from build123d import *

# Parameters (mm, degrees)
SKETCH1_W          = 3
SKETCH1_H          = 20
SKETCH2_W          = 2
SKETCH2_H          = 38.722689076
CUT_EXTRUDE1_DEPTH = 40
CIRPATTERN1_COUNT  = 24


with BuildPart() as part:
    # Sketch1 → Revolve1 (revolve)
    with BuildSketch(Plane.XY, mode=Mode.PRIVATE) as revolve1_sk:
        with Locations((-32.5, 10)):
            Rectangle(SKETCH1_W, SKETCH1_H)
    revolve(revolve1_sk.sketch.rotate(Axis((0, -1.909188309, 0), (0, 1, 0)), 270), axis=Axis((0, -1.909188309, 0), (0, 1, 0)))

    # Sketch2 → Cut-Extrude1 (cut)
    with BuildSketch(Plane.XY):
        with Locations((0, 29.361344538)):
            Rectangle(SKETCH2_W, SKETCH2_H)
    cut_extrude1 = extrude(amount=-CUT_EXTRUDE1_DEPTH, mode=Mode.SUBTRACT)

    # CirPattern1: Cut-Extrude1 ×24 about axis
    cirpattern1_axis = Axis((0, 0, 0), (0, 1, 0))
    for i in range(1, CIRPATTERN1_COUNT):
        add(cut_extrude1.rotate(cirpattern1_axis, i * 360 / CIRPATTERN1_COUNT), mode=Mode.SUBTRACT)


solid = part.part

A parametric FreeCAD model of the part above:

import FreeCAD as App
import Part
import Sketcher
from FreeCAD import Vector


def add_polygon(sketch, points):
    """Adds a closed chain of lines whose ends are joined by coincident constraints."""
    first, n = sketch.GeometryCount, len(points)
    for a, b in zip(points, points[1:] + points[:1]):
        sketch.addGeometry(Part.LineSegment(App.Vector(*a, 0), App.Vector(*b, 0)), False)
    for i in range(n):
        sketch.addConstraint(Sketcher.Constraint("Coincident", first + i, 2, first + (i + 1) % n, 1))

doc = App.newDocument("Part")
body = doc.addObject("PartDesign::Body", "Body")

# Sketch on XY plane
sketch1 = doc.addObject("Sketcher::SketchObject", "Sketch")
body.addObject(sketch1)
sketch1.AttachmentSupport = (doc.XY_Plane, [""])
sketch1.MapMode = "FlatFace"
add_polygon(sketch1, [(-34, 20), (-34, 0), (-31, 0), (-31, 20)])  # lines 0-3
sketch1.addConstraint([
    Sketcher.Constraint("Vertical", 0),
    Sketcher.Constraint("Horizontal", 1),
    Sketcher.Constraint("Vertical", 2),
    Sketcher.Constraint("Horizontal", 3),
    Sketcher.Constraint("PointOnObject", 0, 2, -1),
    Sketcher.Constraint("DistanceX", 1, 1, 1, 2, 3.0),
    Sketcher.Constraint("DistanceY", 0, 2, 0, 1, 20.0),
    Sketcher.Constraint("DistanceX", 0, 2, -1, 1, 34.0),
])
revolution = doc.addObject("PartDesign::Revolution", "Revolution")
body.addObject(revolution)
revolution.Profile = sketch1
revolution.ReferenceAxis = (sketch1, ["V_Axis"])
revolution.Angle = 360

# Sketch on XY plane
sketch2 = doc.addObject("Sketcher::SketchObject", "Sketch001")
body.addObject(sketch2)
sketch2.AttachmentSupport = (doc.XY_Plane, [""])
sketch2.MapMode = "FlatFace"
add_polygon(sketch2, [(-1, 48.722689), (-1, 10), (1, 10), (1, 48.722689)])  # lines 0-3
sketch2.addConstraint([
    Sketcher.Constraint("Vertical", 0),
    Sketcher.Constraint("Horizontal", 1),
    Sketcher.Constraint("Vertical", 2),
    Sketcher.Constraint("Horizontal", 3),
    Sketcher.Constraint("DistanceX", 1, 1, 1, 2, 2.0),
    Sketcher.Constraint("DistanceX", 0, 2, -1, 1, 1.0),
    Sketcher.Constraint("DistanceY", -1, 1, 0, 2, 10.0),
    Sketcher.Constraint("DistanceY", 0, 2, 0, 1, 38.722689),
])
pocket1 = doc.addObject("PartDesign::Pocket", "Pocket")
body.addObject(pocket1)
pocket1.Profile = sketch2
pocket1.Length = 40
doc.recompute()

polarpattern = doc.addObject("PartDesign::PolarPattern", "PolarPattern")
body.addObject(polarpattern)
polarpattern.Originals = [pocket1]
polarpattern.Axis = (doc.Y_Axis, [""])
polarpattern.Angle = 360
polarpattern.Occurrences = 24
body.Tip = polarpattern

doc.recompute()
